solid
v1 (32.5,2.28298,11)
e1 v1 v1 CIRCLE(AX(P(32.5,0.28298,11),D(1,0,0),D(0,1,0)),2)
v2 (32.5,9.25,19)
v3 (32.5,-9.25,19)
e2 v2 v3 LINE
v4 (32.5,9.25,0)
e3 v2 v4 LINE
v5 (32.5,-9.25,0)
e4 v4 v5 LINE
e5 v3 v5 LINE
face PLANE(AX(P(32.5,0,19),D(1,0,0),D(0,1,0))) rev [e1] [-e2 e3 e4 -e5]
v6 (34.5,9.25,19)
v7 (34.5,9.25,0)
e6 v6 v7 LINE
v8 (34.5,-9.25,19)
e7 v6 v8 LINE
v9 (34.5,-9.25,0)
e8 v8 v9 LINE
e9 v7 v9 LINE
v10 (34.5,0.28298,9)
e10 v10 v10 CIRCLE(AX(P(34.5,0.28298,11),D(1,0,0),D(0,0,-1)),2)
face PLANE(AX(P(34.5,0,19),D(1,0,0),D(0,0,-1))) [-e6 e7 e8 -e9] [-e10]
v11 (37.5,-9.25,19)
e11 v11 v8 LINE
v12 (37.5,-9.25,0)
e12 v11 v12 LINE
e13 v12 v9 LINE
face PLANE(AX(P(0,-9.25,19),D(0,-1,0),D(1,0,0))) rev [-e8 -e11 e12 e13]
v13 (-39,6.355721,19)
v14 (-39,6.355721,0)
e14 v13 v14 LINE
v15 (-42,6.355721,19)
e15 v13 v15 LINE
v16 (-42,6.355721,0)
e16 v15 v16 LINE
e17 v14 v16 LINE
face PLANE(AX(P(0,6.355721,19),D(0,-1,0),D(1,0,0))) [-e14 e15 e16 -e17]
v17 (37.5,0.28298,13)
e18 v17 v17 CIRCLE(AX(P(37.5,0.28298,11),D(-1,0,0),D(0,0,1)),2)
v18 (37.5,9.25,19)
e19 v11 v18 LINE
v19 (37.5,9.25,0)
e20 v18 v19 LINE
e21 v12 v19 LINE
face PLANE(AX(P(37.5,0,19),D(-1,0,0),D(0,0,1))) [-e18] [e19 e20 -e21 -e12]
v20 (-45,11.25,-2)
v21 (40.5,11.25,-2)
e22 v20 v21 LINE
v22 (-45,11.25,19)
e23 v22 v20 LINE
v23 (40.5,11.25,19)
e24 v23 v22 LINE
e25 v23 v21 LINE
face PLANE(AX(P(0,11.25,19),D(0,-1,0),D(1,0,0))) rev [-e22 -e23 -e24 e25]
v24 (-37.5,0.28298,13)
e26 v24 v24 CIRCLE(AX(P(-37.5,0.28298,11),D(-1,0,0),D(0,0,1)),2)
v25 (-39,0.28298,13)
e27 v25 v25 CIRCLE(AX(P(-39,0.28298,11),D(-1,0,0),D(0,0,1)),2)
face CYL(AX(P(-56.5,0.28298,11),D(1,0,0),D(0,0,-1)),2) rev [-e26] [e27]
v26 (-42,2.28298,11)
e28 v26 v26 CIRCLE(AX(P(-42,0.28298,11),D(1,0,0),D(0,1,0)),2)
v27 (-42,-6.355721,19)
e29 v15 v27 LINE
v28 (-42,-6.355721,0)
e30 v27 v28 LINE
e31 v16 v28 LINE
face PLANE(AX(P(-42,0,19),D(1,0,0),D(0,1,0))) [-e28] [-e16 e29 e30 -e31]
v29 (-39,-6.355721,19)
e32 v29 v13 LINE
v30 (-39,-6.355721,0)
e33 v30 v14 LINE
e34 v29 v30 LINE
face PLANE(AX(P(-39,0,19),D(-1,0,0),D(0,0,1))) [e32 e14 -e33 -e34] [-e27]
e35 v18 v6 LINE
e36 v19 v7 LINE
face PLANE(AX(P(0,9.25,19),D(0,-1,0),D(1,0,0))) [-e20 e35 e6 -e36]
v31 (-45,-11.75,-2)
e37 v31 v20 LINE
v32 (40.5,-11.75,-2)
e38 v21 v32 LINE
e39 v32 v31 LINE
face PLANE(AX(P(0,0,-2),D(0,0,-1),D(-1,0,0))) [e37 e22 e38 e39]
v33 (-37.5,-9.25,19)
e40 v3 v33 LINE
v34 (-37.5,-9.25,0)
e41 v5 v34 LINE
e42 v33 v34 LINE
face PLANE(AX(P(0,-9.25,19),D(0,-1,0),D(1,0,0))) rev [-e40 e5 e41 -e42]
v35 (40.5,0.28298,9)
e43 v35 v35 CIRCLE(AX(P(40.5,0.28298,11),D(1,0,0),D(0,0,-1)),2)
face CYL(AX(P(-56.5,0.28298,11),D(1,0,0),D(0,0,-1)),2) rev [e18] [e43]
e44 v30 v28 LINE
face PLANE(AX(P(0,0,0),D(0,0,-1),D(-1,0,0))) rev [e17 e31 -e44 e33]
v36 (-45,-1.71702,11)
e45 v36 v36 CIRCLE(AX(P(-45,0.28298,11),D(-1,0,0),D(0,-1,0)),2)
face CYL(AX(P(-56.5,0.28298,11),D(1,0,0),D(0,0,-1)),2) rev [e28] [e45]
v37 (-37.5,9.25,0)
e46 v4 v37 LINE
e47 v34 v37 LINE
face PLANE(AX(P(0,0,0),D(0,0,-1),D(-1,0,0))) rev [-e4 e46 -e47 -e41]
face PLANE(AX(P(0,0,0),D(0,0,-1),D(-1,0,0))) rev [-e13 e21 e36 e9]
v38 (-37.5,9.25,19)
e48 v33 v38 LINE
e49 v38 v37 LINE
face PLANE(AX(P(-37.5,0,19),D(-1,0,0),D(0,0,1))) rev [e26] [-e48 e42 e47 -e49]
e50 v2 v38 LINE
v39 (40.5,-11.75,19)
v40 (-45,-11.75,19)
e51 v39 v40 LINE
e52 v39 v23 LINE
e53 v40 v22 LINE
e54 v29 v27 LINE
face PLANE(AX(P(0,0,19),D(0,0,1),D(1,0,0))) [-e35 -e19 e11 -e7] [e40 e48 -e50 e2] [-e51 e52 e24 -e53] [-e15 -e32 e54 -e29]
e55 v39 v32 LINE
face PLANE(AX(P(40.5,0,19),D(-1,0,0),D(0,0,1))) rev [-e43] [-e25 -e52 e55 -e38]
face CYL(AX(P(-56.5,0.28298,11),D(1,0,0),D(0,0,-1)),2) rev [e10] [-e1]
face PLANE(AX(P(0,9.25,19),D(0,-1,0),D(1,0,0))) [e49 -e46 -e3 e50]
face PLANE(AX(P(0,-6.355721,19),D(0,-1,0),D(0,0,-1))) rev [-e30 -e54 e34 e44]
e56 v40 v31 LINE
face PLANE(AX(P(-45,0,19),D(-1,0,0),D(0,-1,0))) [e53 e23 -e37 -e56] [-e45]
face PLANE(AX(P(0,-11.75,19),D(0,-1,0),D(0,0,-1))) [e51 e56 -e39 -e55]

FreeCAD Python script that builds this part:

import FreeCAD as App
import Part
import Sketcher

V = App.Vector

doc = App.newDocument("Part")
body = doc.addObject("PartDesign::Body", "Body")

# Sketch on XY plane
sketch1 = doc.addObject("Sketcher::SketchObject", "Sketch")
body.addObject(sketch1)
sketch1.AttachmentSupport = (doc.XY_Plane, [""])
sketch1.MapMode = "FlatFace"
sketch1.addGeometry([
    Part.LineSegment(V(-45, 11.2, 0), V(-45, -11.8, 0)),  # 0
    Part.LineSegment(V(-45, -11.8, 0), V(40.5, -11.8, 0)),  # 1
    Part.LineSegment(V(40.5, -11.8, 0), V(40.5, 11.2, 0)),  # 2
    Part.LineSegment(V(40.5, 11.2, 0), V(-45, 11.2, 0)),  # 3
    Part.LineSegment(V(-39, -6.4, 0), V(-42, -6.4, 0)),  # 4
    Part.LineSegment(V(-42, -6.4, 0), V(-42, 6.4, 0)),  # 5
    Part.LineSegment(V(-42, 6.4, 0), V(-39, 6.4, 0)),  # 6
    Part.LineSegment(V(-39, 6.4, 0), V(-39, -6.4, 0)),  # 7
    Part.LineSegment(V(32.5, -9.2, 0), V(-37.5, -9.2, 0)),  # 8
    Part.LineSegment(V(-37.5, -9.2, 0), V(-37.5, 9.2, 0)),  # 9
    Part.LineSegment(V(-37.5, 9.2, 0), V(32.5, 9.2, 0)),  # 10
    Part.LineSegment(V(32.5, 9.2, 0), V(32.5, -9.2, 0)),  # 11
    Part.LineSegment(V(37.5, -9.2, 0), V(34.5, -9.2, 0)),  # 12
    Part.LineSegment(V(34.5, -9.2, 0), V(34.5, 9.2, 0)),  # 13
    Part.LineSegment(V(34.5, 9.2, 0), V(37.5, 9.2, 0)),  # 14
    Part.LineSegment(V(37.5, 9.2, 0), V(37.5, -9.2, 0)),  # 15
], False)
sketch1.addConstraint([
    Sketcher.Constraint("Coincident", 0, 2, 1, 1),
    Sketcher.Constraint("Coincident", 1, 2, 2, 1),
    Sketcher.Constraint("Coincident", 2, 2, 3, 1),
    Sketcher.Constraint("Coincident", 3, 2, 0, 1),
    Sketcher.Constraint("Coincident", 4, 2, 5, 1),
    Sketcher.Constraint("Coincident", 5, 2, 6, 1),
    Sketcher.Constraint("Coincident", 6, 2, 7, 1),
    Sketcher.Constraint("Coincident", 7, 2, 4, 1),
    Sketcher.Constraint("Coincident", 8, 2, 9, 1),
    Sketcher.Constraint("Coincident", 9, 2, 10, 1),
    Sketcher.Constraint("Coincident", 10, 2, 11, 1),
    Sketcher.Constraint("Coincident", 11, 2, 8, 1),
    Sketcher.Constraint("Coincident", 12, 2, 13, 1),
    Sketcher.Constraint("Coincident", 13, 2, 14, 1),
    Sketcher.Constraint("Coincident", 14, 2, 15, 1),
    Sketcher.Constraint("Coincident", 15, 2, 12, 1),
    Sketcher.Constraint("Vertical", 0),
    Sketcher.Constraint("Horizontal", 1),
    Sketcher.Constraint("Vertical", 2),
    Sketcher.Constraint("Horizontal", 3),
    Sketcher.Constraint("Horizontal", 4),
    Sketcher.Constraint("Vertical", 5),
    Sketcher.Constraint("Horizontal", 6),
    Sketcher.Constraint("Vertical", 7),
    Sketcher.Constraint("Horizontal", 8),
    Sketcher.Constraint("Vertical", 9),
    Sketcher.Constraint("Horizontal", 10),
    Sketcher.Constraint("Vertical", 11),
    Sketcher.Constraint("Horizontal", 12),
    Sketcher.Constraint("Vertical", 13),
    Sketcher.Constraint("Horizontal", 14),
    Sketcher.Constraint("Vertical", 15),
    Sketcher.Constraint("Symmetric", 8, 2, 14, 2, -1, 1),
    Sketcher.Constraint("Horizontal", 11, 2, 12, 2),
    Sketcher.Constraint("Horizontal", 10, 2, 13, 2),
    Sketcher.Constraint("Equal", 6, 12),
    Sketcher.Constraint("DistanceX", 4, 2, 4, 1, 3.0),
    Sketcher.Constraint("DistanceX", 8, 2, 8, 1, 70.0),
    Sketcher.Constraint("DistanceY", 0, 2, 0, 1, 23.0),
    Sketcher.Constraint("DistanceX", 1, 1, 1, 2, 85.5),
    Sketcher.Constraint("DistanceY", 9, 1, 9, 2, 18.5),
    Sketcher.Constraint("DistanceX", 0, 2, -1, 1, 45.0),
    Sketcher.Constraint("DistanceX", 4, 2, -1, 1, 42.0),
    Sketcher.Constraint("DistanceY", 9, 2, 3, 2, 2.0),
    Sketcher.Constraint("DistanceX", 10, 2, 2, 2, 8.0),
    Sketcher.Constraint("DistanceY", 5, 1, 5, 2, 12.711443),
    Sketcher.Constraint("DistanceY", 4, 2, -1, 1, 6.355721),
])
pad1 = doc.addObject("PartDesign::Pad", "Pad")
body.addObject(pad1)
pad1.Profile = sketch1
pad1.Length = 19

# Sketch on XY plane
sketch2 = doc.addObject("Sketcher::SketchObject", "Sketch001")
body.addObject(sketch2)
sketch2.AttachmentSupport = (doc.XY_Plane, [""])
sketch2.MapMode = "FlatFace"
sketch2.addGeometry([
    Part.LineSegment(V(40, 11, 0), V(40, -12, 0)),
    Part.LineSegment(V(40, -12, 0), V(-45, -12, 0)),
    Part.LineSegment(V(-45, -12, 0), V(-45, 11, 0)),
    Part.LineSegment(V(-45, 11, 0), V(40, 11, 0)),
], False)
sketch2.addConstraint([
    Sketcher.Constraint("Coincident", 0, 2, 1, 1),
    Sketcher.Constraint("Coincident", 1, 2, 2, 1),
    Sketcher.Constraint("Coincident", 2, 2, 3, 1),
    Sketcher.Constraint("Coincident", 3, 2, 0, 1),
    Sketcher.Constraint("Vertical", 0),
    Sketcher.Constraint("Horizontal", 1),
    Sketcher.Constraint("Vertical", 2),
    Sketcher.Constraint("Horizontal", 3),
    Sketcher.Constraint("DistanceY", 0, 2, 0, 1, 23.0),
    Sketcher.Constraint("DistanceX", 1, 2, 1, 1, 85.5),
    Sketcher.Constraint("DistanceX", 1, 2, -1, 1, 45.0),
    Sketcher.Constraint("DistanceY", 0, 2, -1, 1, 11.75),
])
pad2 = doc.addObject("PartDesign::Pad", "Pad001")
body.addObject(pad2)
pad2.Profile = sketch2
pad2.Length = 2
pad2.Reversed = True

# Sketch on YZ plane
sketch3 = doc.addObject("Sketcher::SketchObject", "Sketch002")
body.addObject(sketch3)
sketch3.AttachmentSupport = (doc.YZ_Plane, [""])
sketch3.MapMode = "FlatFace"
sketch3.AttachmentOffset = App.Placement(V(0, 0, 40.5), App.Rotation())
sketch3.addGeometry(Part.Circle(V(0.3, 11, 0), V(0, 0, 1), 2), False)
sketch3.addConstraint([
    Sketcher.Constraint("Diameter", 0, 4.0),
    Sketcher.Constraint("DistanceY", -1, 1, 0, 3, 11.0),
    Sketcher.Constraint("DistanceX", -1, 1, 0, 3, 0.28298),
])
pocket1 = doc.addObject("PartDesign::Pocket", "Pocket")
body.addObject(pocket1)
pocket1.Profile = sketch3
pocket1.Length = 97

doc.recompute()
